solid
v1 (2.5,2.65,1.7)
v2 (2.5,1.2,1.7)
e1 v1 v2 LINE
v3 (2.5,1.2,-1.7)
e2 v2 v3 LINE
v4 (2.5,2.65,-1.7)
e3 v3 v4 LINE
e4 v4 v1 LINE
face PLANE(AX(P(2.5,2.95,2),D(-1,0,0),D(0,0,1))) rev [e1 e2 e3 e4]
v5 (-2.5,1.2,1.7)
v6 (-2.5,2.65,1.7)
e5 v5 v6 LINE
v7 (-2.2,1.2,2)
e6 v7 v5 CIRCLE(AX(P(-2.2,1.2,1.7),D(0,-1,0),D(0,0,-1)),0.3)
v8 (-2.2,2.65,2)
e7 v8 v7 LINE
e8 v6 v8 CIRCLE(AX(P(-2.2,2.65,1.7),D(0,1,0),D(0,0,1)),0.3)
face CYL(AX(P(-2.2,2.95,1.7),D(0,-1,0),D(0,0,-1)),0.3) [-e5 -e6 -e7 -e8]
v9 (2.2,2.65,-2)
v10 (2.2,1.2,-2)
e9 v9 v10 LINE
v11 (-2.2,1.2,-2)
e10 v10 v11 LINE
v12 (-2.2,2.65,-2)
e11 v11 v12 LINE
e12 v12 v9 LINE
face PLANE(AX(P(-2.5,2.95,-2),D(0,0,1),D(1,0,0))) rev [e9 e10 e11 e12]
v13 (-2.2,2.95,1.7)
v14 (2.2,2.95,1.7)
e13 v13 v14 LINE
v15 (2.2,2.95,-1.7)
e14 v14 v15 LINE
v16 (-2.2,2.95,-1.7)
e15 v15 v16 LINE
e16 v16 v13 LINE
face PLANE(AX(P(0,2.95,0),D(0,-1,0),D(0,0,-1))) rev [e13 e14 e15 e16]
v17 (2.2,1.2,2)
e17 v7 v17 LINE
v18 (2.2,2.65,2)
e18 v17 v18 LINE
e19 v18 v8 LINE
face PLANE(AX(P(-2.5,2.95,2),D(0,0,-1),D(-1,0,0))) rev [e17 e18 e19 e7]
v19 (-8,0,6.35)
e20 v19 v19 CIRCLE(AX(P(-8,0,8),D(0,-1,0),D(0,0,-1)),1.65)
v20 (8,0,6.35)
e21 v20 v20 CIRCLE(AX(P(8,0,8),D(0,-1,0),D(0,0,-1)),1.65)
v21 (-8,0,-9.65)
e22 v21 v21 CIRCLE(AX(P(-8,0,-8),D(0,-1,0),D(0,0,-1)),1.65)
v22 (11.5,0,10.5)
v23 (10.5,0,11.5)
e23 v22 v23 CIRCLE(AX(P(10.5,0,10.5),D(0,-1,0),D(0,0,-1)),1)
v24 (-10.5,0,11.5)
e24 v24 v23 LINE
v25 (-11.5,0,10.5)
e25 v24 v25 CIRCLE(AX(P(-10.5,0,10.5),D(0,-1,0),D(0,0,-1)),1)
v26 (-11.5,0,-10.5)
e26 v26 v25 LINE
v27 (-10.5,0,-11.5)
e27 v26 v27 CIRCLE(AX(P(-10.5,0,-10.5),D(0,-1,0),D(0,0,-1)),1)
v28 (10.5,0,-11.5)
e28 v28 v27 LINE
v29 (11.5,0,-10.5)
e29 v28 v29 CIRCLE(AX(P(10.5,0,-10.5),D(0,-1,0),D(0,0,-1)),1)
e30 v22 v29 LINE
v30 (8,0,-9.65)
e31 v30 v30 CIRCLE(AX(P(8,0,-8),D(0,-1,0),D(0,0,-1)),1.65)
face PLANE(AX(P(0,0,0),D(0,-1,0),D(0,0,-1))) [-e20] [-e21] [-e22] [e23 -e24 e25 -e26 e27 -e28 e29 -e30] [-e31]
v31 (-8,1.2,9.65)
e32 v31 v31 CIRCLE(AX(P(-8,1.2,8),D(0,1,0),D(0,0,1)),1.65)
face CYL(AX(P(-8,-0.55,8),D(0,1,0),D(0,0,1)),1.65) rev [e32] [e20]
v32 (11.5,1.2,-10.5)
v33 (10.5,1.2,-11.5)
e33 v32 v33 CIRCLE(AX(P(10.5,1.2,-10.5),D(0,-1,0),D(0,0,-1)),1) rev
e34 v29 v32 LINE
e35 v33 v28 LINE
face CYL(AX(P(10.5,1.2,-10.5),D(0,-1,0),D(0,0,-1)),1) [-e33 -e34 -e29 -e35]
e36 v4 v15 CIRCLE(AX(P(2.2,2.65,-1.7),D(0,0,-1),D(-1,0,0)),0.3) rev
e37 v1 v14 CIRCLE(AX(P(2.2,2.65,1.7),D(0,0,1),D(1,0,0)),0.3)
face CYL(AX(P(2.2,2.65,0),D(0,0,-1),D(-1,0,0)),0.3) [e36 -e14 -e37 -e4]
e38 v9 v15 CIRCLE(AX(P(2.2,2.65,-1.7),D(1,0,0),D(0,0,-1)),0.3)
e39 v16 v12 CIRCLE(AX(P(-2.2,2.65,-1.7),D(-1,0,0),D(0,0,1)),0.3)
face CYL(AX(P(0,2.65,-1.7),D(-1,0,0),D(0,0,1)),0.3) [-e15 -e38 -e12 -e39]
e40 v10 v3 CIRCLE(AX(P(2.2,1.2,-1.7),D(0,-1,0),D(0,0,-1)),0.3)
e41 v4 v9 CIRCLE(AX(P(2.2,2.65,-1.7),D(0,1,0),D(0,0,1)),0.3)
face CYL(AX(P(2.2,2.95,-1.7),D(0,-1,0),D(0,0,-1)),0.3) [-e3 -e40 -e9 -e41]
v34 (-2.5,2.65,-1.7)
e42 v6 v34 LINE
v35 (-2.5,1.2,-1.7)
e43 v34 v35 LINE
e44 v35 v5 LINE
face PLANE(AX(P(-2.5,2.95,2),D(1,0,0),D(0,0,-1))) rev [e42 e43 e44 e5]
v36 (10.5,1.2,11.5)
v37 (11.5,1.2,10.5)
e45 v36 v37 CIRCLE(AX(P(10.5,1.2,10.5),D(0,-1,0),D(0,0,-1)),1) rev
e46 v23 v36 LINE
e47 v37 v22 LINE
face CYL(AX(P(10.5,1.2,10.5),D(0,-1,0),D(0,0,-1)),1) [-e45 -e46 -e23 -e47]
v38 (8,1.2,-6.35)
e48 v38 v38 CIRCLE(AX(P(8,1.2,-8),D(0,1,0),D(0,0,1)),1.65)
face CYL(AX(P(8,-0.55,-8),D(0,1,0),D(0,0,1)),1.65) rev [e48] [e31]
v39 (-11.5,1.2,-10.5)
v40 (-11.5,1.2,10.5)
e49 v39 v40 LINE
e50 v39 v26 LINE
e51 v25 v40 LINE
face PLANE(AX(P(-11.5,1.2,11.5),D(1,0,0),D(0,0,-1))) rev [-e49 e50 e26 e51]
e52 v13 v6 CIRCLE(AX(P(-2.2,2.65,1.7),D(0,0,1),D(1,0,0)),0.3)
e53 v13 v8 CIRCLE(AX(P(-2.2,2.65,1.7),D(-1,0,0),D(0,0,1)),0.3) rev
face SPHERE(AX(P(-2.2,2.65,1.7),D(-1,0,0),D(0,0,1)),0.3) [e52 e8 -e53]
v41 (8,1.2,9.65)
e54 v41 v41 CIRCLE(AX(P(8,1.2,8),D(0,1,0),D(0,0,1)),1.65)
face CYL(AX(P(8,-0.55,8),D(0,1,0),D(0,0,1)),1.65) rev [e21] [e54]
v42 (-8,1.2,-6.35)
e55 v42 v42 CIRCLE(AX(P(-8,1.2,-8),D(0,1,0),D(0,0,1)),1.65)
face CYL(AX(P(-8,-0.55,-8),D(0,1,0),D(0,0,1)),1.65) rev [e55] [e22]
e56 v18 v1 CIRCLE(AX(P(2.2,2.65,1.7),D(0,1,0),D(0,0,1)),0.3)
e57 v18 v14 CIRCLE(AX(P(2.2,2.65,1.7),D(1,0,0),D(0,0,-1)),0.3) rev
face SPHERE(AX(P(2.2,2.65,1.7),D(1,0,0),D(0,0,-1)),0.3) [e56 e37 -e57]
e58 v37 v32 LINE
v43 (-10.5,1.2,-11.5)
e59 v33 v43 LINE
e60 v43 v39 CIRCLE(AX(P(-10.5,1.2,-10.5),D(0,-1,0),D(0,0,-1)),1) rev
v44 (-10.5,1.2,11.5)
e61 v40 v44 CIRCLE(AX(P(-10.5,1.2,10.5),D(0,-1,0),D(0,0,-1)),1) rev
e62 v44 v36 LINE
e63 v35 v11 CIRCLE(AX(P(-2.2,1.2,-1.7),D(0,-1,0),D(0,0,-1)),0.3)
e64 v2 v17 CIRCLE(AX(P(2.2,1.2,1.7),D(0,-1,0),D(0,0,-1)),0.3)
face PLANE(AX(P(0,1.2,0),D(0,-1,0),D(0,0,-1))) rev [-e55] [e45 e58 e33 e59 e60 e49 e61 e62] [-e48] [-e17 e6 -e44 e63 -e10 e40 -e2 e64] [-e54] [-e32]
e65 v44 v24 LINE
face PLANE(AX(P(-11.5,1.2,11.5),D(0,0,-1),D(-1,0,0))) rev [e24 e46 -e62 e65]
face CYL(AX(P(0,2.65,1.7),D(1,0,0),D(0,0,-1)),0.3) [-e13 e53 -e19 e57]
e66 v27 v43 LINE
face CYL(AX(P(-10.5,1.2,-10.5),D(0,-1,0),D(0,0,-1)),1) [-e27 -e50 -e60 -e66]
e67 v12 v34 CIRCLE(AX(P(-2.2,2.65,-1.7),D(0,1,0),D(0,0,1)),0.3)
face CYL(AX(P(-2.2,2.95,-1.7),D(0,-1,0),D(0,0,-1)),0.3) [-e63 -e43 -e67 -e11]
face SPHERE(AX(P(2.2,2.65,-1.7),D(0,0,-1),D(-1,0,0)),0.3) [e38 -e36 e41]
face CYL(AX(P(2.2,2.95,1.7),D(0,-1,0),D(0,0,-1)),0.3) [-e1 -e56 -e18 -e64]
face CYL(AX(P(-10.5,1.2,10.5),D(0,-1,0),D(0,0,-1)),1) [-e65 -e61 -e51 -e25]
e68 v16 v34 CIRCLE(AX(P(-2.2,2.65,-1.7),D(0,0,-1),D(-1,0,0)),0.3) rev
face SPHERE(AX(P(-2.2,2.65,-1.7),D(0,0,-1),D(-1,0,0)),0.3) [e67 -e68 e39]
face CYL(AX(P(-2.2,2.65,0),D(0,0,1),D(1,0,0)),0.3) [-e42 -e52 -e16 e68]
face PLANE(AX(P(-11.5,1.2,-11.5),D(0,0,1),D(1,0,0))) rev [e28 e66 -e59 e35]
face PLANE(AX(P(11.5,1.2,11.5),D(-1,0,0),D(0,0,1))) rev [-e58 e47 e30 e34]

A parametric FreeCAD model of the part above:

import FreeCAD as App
import Part
import Sketcher
from FreeCAD import Vector
Q = App.Units.Quantity


def edges_at(feature, points):
    """Names of the edges that pass closest to the given points."""
    edges = feature.Shape.Edges
    near = lambda p: min(range(len(edges)), key=lambda i: edges[i].distToShape(Part.Vertex(*p))[0])
    return sorted({f"Edge{near(p) + 1}" for p in points})

doc = App.newDocument("Part")
body = doc.addObject("PartDesign::Body", "Body")

sketch1 = body.newObject("Sketcher::SketchObject", "Sketch")
sketch1.AttachmentSupport = (doc.getObject("XZ_Plane"), [""])
sketch1.MapMode = "FlatFace"
sketch1.addGeometry(Part.LineSegment(Vector(-11.5, -11.5, 0), Vector(-11.5, 11.5, 0)), False)
sketch1.addGeometry(Part.LineSegment(Vector(-11.5, 11.5, 0), Vector(11.5, 11.5, 0)), False)
sketch1.addGeometry(Part.LineSegment(Vector(11.5, 11.5, 0), Vector(11.5, -11.5, 0)), False)
sketch1.addGeometry(Part.LineSegment(Vector(11.5, -11.5, 0), Vector(-11.5, -11.5, 0)), False)
sketch1.addConstraint(Sketcher.Constraint("Coincident", 0, 2, 1, 1))
sketch1.addConstraint(Sketcher.Constraint("Coincident", 1, 2, 2, 1))
sketch1.addConstraint(Sketcher.Constraint("Coincident", 2, 2, 3, 1))
sketch1.addConstraint(Sketcher.Constraint("Coincident", 3, 2, 0, 1))
sketch1.addConstraint(Sketcher.Constraint("Vertical", 0))
sketch1.addConstraint(Sketcher.Constraint("Horizontal", 1))
sketch1.addConstraint(Sketcher.Constraint("Vertical", 2))
sketch1.addConstraint(Sketcher.Constraint("Horizontal", 3))
sketch1.addConstraint(Sketcher.Constraint("Symmetric", 0, 2, 2, 2, -1, 1))
sketch1.addConstraint(Sketcher.Constraint("Equal", 3, 0))
sketch1.addConstraint(Sketcher.Constraint("DistanceX", 1, 1, 1, 2, Q("23 mm")))
pad1 = body.newObject("PartDesign::Pad", "Pad")
pad1.Profile = sketch1
pad1.Length = 1.2
pad1.Reversed = True
doc.recompute()

fillet = body.newObject("PartDesign::Fillet", "Fillet")
fillet.Base = (pad1, edges_at(pad1, [
    (11.5, 0.6, 11.5),
    (-11.5, 0.6, 11.5),
    (-11.5, 0.6, -11.5),
    (11.5, 0.6, -11.5),
]))
fillet.Radius = 1

sketch2 = body.newObject("Sketcher::SketchObject", "Sketch001")
sketch2.AttachmentSupport = (doc.getObject("XZ_Plane"), [""])
sketch2.MapMode = "FlatFace"
sketch2.AttachmentOffset = App.Placement(Vector(0, 0, -1.2), App.Rotation())
sketch2.addGeometry(Part.LineSegment(Vector(-2.5, -2, 0), Vector(-2.5, 2, 0)), False)
sketch2.addGeometry(Part.LineSegment(Vector(-2.5, 2, 0), Vector(2.5, 2, 0)), False)
sketch2.addGeometry(Part.LineSegment(Vector(2.5, 2, 0), Vector(2.5, -2, 0)), False)
sketch2.addGeometry(Part.LineSegment(Vector(2.5, -2, 0), Vector(-2.5, -2, 0)), False)
sketch2.addConstraint(Sketcher.Constraint("Coincident", 0, 2, 1, 1))
sketch2.addConstraint(Sketcher.Constraint("Coincident", 1, 2, 2, 1))
sketch2.addConstraint(Sketcher.Constraint("Coincident", 2, 2, 3, 1))
sketch2.addConstraint(Sketcher.Constraint("Coincident", 3, 2, 0, 1))
sketch2.addConstraint(Sketcher.Constraint("Vertical", 0))
sketch2.addConstraint(Sketcher.Constraint("Horizontal", 1))
sketch2.addConstraint(Sketcher.Constraint("Vertical", 2))
sketch2.addConstraint(Sketcher.Constraint("Horizontal", 3))
sketch2.addConstraint(Sketcher.Constraint("Symmetric", 0, 2, 2, 2, -1, 1))
sketch2.addConstraint(Sketcher.Constraint("DistanceX", 1, 1, 1, 2, Q("5 mm")))
sketch2.addConstraint(Sketcher.Constraint("DistanceY", 0, 1, 0, 2, Q("4 mm")))
pad2 = body.newObject("PartDesign::Pad", "Pad001")
pad2.Profile = sketch2
pad2.Length = 1.75
pad2.Reversed = True
doc.recompute()

fillet2 = body.newObject("PartDesign::Fillet", "Fillet001")
fillet2.Base = (pad2, edges_at(pad2, [
    (2.5, 2.075, 2),
    (2.5, 2.075, -2),
    (-2.5, 2.075, -2),
    (-2.5, 2.075, 2),
    (2.5, 2.95, 0),
    (0, 2.95, -2),
    (-2.5, 2.95, 0),
    (0, 2.95, 2),
]))
fillet2.Radius = 0.3

sketch3 = body.newObject("Sketcher::SketchObject", "Sketch002")
sketch3.AttachmentSupport = (doc.getObject("XZ_Plane"), [""])
sketch3.MapMode = "FlatFace"
sketch3.AttachmentOffset = App.Placement(Vector(0, 0, -1.2), App.Rotation())
sketch3.addGeometry(Part.Circle(Vector(-8, -8, 0), Vector(0, 0, 1), 1.65), False)
sketch3.addGeometry(Part.Circle(Vector(8, -8, 0), Vector(0, 0, 1), 1.65), False)
sketch3.addGeometry(Part.Circle(Vector(8, 8, 0), Vector(0, 0, 1), 1.65), False)
sketch3.addGeometry(Part.Circle(Vector(-8, 8, 0), Vector(0, 0, 1), 1.65), False)
sketch3.addConstraint(Sketcher.Constraint("Equal", 0, 1))
sketch3.addConstraint(Sketcher.Constraint("Equal", 1, 2))
sketch3.addConstraint(Sketcher.Constraint("Equal", 2, 3))
sketch3.addConstraint(Sketcher.Constraint("Symmetric", 0, 3, 2, 3, -1, 1))
sketch3.addConstraint(Sketcher.Constraint("Symmetric", 1, 3, 3, 3, -1, 1))
sketch3.addConstraint(Sketcher.Constraint("Symmetric", 0, 3, 1, 3, -2))
sketch3.addConstraint(Sketcher.Constraint("Diameter", 0, Q("3.3 mm")))
sketch3.addConstraint(Sketcher.Constraint("DistanceX", 0, 3, -1, 1, Q("8 mm")))
sketch3.addConstraint(Sketcher.Constraint("DistanceY", 0, 3, -1, 1, Q("8 mm")))
pocket1 = body.newObject("PartDesign::Pocket", "Pocket")
pocket1.Profile = sketch3
pocket1.Length = 1.75
pocket1.Reversed = True

doc.recompute()
